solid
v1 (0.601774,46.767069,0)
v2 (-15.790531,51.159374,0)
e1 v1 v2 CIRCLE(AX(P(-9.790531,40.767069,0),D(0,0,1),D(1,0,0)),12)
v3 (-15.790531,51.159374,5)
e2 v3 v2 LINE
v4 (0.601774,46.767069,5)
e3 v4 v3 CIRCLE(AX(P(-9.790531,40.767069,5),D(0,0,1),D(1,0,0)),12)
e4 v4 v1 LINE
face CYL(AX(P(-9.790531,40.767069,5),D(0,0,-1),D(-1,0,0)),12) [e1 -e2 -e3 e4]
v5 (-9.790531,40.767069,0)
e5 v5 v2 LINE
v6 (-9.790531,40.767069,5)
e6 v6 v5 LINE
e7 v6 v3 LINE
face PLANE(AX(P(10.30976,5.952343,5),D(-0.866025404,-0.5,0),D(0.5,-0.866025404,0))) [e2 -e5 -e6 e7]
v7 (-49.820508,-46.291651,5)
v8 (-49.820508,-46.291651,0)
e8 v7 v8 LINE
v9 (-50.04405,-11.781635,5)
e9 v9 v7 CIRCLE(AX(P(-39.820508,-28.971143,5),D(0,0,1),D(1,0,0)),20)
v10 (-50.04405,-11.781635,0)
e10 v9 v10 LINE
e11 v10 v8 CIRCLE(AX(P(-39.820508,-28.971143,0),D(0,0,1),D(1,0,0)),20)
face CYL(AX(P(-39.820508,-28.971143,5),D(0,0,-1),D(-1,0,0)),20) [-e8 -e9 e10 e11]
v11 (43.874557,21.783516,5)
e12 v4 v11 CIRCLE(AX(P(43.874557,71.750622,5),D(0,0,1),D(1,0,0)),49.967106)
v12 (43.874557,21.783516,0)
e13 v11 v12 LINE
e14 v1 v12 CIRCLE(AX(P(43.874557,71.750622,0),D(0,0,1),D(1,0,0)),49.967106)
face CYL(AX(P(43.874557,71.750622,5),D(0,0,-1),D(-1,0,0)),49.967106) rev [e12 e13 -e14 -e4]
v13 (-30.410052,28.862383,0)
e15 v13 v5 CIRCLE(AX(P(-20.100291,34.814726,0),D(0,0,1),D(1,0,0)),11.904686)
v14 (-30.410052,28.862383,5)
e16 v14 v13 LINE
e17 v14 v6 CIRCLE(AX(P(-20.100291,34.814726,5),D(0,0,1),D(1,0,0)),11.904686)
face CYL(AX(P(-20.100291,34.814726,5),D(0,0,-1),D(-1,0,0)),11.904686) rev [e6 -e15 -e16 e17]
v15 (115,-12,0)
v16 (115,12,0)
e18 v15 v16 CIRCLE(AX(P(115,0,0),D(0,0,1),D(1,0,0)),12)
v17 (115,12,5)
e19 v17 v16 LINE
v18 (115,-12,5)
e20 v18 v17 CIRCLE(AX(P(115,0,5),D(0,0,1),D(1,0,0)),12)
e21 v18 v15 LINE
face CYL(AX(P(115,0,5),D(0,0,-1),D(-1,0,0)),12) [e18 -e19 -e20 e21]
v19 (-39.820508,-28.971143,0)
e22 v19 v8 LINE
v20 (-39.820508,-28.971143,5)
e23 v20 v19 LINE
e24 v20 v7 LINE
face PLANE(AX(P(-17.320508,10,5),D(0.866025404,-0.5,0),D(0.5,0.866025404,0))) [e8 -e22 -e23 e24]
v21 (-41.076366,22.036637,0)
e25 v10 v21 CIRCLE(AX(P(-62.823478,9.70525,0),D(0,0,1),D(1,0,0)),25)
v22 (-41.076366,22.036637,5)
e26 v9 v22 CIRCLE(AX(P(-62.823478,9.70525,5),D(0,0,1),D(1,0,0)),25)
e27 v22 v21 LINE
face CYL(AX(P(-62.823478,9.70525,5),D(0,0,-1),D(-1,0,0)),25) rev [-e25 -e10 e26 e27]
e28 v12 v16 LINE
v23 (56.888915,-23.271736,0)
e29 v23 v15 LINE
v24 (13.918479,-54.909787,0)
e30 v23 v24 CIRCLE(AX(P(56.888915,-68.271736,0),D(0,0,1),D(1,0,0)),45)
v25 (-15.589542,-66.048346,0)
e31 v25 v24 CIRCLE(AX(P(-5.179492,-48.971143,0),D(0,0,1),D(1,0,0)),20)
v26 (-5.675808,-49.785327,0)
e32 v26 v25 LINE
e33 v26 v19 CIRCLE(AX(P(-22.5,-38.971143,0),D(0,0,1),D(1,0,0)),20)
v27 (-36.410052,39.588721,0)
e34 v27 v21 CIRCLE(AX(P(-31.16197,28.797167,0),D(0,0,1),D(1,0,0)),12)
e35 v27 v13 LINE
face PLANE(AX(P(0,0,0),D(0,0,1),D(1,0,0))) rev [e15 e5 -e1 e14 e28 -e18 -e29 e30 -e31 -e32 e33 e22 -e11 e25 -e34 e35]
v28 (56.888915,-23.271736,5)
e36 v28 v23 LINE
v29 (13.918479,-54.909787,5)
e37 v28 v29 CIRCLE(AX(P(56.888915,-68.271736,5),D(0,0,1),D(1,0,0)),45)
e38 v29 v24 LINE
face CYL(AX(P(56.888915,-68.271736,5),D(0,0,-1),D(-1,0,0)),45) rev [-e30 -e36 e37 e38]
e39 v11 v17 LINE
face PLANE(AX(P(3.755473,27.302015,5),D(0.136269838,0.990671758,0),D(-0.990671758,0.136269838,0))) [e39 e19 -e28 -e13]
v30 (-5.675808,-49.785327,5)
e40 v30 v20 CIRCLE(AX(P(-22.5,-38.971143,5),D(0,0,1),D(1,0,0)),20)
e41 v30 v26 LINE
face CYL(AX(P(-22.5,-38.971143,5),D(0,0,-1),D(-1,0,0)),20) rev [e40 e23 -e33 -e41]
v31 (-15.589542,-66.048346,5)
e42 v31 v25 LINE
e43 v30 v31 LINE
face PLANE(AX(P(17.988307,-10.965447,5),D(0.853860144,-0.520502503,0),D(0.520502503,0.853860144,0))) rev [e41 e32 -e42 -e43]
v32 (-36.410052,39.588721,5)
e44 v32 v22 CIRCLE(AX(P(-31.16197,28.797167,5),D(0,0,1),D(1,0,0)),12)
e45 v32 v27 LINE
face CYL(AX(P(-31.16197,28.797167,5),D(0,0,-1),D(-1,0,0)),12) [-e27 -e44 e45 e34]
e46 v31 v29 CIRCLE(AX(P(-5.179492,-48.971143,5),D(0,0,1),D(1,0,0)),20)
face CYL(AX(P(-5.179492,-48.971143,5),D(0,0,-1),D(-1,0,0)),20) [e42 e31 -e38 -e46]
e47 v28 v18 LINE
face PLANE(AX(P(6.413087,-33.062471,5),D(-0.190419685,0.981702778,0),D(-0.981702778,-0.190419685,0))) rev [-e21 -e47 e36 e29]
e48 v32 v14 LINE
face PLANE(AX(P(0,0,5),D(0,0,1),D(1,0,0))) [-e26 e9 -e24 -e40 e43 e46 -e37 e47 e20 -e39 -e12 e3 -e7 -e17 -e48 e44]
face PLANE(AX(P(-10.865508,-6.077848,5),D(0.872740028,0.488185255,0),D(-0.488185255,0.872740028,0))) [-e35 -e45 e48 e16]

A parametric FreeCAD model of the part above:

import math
import FreeCAD as App
import Part
import Sketcher

V = App.Vector
Q = App.Units.Quantity

doc = App.newDocument("Part")
body = doc.addObject("PartDesign::Body", "Body")

# Sketch on XY plane
sketch1 = body.newObject("Sketcher::SketchObject", "Sketch")
sketch1.AttachmentSupport = (doc.getObject("XY_Plane"), [""])
sketch1.MapMode = "FlatFace"
sketch1.addGeometry(Part.LineSegment(V(-30.4, 28.9, 0), V(-36.4, 39.6, 0)), False)
sketch1.addGeometry(Part.ArcOfCircle(Part.Circle(V(-31.2, 28.8, 0), V(0, 0, 1), 12), math.radians(116), math.radians(214)), False)
sketch1.addGeometry(Part.ArcOfCircle(Part.Circle(V(-62.8, 9.7, 0), V(0, 0, 1), 25), math.radians(-59), math.radians(30)), False)
sketch1.addGeometry(Part.ArcOfCircle(Part.Circle(V(-39.8, -29, 0), V(0, 0, 1), 20), math.radians(121), math.radians(240)), False)
sketch1.addGeometry(Part.LineSegment(V(-49.8, -46.3, 0), V(-39.8, -29, 0)), False)
sketch1.addGeometry(Part.ArcOfCircle(Part.Circle(V(-22.5, -39, 0), V(0, 0, 1), 20), math.radians(-30), math.radians(150)), False)
sketch1.addGeometry(Part.ArcOfCircle(Part.Circle(V(-22.5, -39, 0), V(0, 0, 1), 20), math.radians(-32.73), math.radians(-30)), False)
sketch1.addGeometry(Part.LineSegment(V(-5.7, -49.8, 0), V(-15.6, -66, 0)), False)
sketch1.addGeometry(Part.ArcOfCircle(Part.Circle(V(-5.2, -49, 0), V(0, 0, 1), 20), math.radians(-121), math.radians(-17)), False)
sketch1.addGeometry(Part.ArcOfCircle(Part.Circle(V(56.9, -68.3, 0), V(0, 0, 1), 45), math.radians(90), math.radians(163)), False)
sketch1.addGeometry(Part.LineSegment(V(56.9, -23.3, 0), V(115, -12, 0)), False)
sketch1.addGeometry(Part.ArcOfCircle(Part.Circle(V(115, 0, 0), V(0, 0, 1), 12), math.radians(-90), math.radians(90)), False)
sketch1.addGeometry(Part.LineSegment(V(115, 12, 0), V(43.9, 21.8, 0)), False)
sketch1.addGeometry(Part.ArcOfCircle(Part.Circle(V(43.9, 71.8, 0), V(0, 0, 1), 50), math.radians(-150), math.radians(-90)), False)
sketch1.addGeometry(Part.ArcOfCircle(Part.Circle(V(-9.8, 40.8, 0), V(0, 0, 1), 12), math.radians(30), math.radians(120)), False)
sketch1.addGeometry(Part.LineSegment(V(-15.8, 51.2, 0), V(-9.8, 40.8, 0)), False)
sketch1.addGeometry(Part.ArcOfCircle(Part.Circle(V(-20.1, 34.8, 0), V(0, 0, 1), 11.9), math.radians(-150), math.radians(30)), False)
sketch1.addConstraint(Sketcher.Constraint("Coincident", 0, 2, 1, 1))
sketch1.addConstraint(Sketcher.Constraint("Coincident", 1, 2, 2, 2))
sketch1.addConstraint(Sketcher.Constraint("Tangent", 2, 1, 3, 1))
sketch1.addConstraint(Sketcher.Constraint("Coincident", 3, 2, 4, 1))
sketch1.addConstraint(Sketcher.Constraint("Tangent", 4, 2, 5, 2))
sketch1.addConstraint(Sketcher.Constraint("Tangent", 5, 1, 6, 2))
sketch1.addConstraint(Sketcher.Constraint("Coincident", 6, 1, 7, 1))
sketch1.addConstraint(Sketcher.Constraint("Coincident", 7, 2, 8, 1))
sketch1.addConstraint(Sketcher.Constraint("Tangent", 8, 2, 9, 2))
sketch1.addConstraint(Sketcher.Constraint("Coincident", 9, 1, 10, 1))
sketch1.addConstraint(Sketcher.Constraint("Coincident", 10, 2, 11, 1))
sketch1.addConstraint(Sketcher.Constraint("Coincident", 11, 2, 12, 1))
sketch1.addConstraint(Sketcher.Constraint("Coincident", 12, 2, 13, 2))
sketch1.addConstraint(Sketcher.Constraint("Tangent", 13, 1, 14, 1))
sketch1.addConstraint(Sketcher.Constraint("Coincident", 14, 2, 15, 1))
sketch1.addConstraint(Sketcher.Constraint("Tangent", 15, 2, 16, 2))
sketch1.addConstraint(Sketcher.Constraint("Coincident", 16, 1, 0, 1))
sketch1.addConstraint(Sketcher.Constraint("Coincident", 4, 2, 3, 3))
sketch1.addConstraint(Sketcher.Constraint("Coincident", 5, 1, 8, 3))
sketch1.addConstraint(Sketcher.Constraint("Coincident", 15, 2, 14, 3))
sketch1.addConstraint(Sketcher.Constraint("Equal", 3, 5))
sketch1.addConstraint(Sketcher.Constraint("Equal", 5, 6))
sketch1.addConstraint(Sketcher.Constraint("Equal", 6, 8))
sketch1.addConstraint(Sketcher.Constraint("Equal", 1, 11))
sketch1.addConstraint(Sketcher.Constraint("Equal", 11, 14))
sketch1.addConstraint(Sketcher.Constraint("Symmetric", 10, 2, 11, 2, -1))
sketch1.addConstraint(Sketcher.Constraint("Vertical", 11, 3, 10, 2))
sketch1.addConstraint(Sketcher.Constraint("Vertical", 13, 3, 12, 2))
sketch1.addConstraint(Sketcher.Constraint("Radius", 1, Q("12 mm")))
sketch1.addConstraint(Sketcher.Constraint("Radius", 2, Q("25 mm")))
sketch1.addConstraint(Sketcher.Constraint("Radius", 3, Q("20 mm")))
sketch1.addConstraint(Sketcher.Constraint("Radius", 9, Q("45 mm")))
sketch1.addConstraint(Sketcher.Constraint("Angle", 4, Q("60 deg")))
sketch1.addConstraint(Sketcher.Constraint("Angle", 15, Q("-60 deg")))
sketch1.addConstraint(Sketcher.Constraint("DistanceX", -1, 1, 11, 3, Q("115 mm")))
sketch1.addConstraint(Sketcher.Constraint("DistanceY", 8, 3, 5, 3, Q("10 mm")))
sketch1.addConstraint(Sketcher.Constraint("DistanceY", 14, 3, 13, 1, Q("6 mm")))
sketch1.addConstraint(Sketcher.Constraint("DistanceX", 0, 2, 16, 1, Q("6 mm")))
sketch1.addConstraint(Sketcher.Constraint("DistanceX", 5, 3, -1, 1, Q("22.5 mm")))
sketch1.addConstraint(Sketcher.Constraint("Radius", 13, Q("49.967106 mm")))
sketch1.addConstraint(Sketcher.Constraint("Radius", 16, Q("11.904686 mm")))
sketch1.addConstraint(Sketcher.Constraint("DistanceY", 1, 3, 14, 3, Q("11.969902 mm")))
sketch1.addConstraint(Sketcher.Constraint("DistanceX", 3, 3, 6, 1, Q("34.1447 mm")))
sketch1.addConstraint(Sketcher.Constraint("DistanceX", 1, 3, -1, 1, Q("31.16197 mm")))
sketch1.addConstraint(Sketcher.Constraint("DistanceY", -1, 1, 2, 3, Q("9.70525 mm")))
sketch1.addConstraint(Sketcher.Constraint("DistanceY", -1, 1, 13, 3, Q("71.750622 mm")))
sketch1.addConstraint(Sketcher.Constraint("DistanceX", 14, 3, -1, 1, Q("9.790531 mm")))
sketch1.addConstraint(Sketcher.Constraint("DistanceX", 0, 2, -1, 1, Q("36.410052 mm")))
sketch1.addConstraint(Sketcher.Constraint("DistanceX", 2, 1, -1, 1, Q("50.04405 mm")))
sketch1.addConstraint(Sketcher.Constraint("DistanceX", 7, 2, -1, 1, Q("15.589542 mm")))
sketch1.addConstraint(Sketcher.Constraint("DistanceX", -1, 1, 8, 2, Q("13.918479 mm")))
sketch1.addConstraint(Sketcher.Constraint("Distance", 10, Q("59.194174 mm")))
pad1 = body.newObject("PartDesign::Pad", "Pad")
pad1.Profile = sketch1
pad1.Length = 5

doc.recompute()
